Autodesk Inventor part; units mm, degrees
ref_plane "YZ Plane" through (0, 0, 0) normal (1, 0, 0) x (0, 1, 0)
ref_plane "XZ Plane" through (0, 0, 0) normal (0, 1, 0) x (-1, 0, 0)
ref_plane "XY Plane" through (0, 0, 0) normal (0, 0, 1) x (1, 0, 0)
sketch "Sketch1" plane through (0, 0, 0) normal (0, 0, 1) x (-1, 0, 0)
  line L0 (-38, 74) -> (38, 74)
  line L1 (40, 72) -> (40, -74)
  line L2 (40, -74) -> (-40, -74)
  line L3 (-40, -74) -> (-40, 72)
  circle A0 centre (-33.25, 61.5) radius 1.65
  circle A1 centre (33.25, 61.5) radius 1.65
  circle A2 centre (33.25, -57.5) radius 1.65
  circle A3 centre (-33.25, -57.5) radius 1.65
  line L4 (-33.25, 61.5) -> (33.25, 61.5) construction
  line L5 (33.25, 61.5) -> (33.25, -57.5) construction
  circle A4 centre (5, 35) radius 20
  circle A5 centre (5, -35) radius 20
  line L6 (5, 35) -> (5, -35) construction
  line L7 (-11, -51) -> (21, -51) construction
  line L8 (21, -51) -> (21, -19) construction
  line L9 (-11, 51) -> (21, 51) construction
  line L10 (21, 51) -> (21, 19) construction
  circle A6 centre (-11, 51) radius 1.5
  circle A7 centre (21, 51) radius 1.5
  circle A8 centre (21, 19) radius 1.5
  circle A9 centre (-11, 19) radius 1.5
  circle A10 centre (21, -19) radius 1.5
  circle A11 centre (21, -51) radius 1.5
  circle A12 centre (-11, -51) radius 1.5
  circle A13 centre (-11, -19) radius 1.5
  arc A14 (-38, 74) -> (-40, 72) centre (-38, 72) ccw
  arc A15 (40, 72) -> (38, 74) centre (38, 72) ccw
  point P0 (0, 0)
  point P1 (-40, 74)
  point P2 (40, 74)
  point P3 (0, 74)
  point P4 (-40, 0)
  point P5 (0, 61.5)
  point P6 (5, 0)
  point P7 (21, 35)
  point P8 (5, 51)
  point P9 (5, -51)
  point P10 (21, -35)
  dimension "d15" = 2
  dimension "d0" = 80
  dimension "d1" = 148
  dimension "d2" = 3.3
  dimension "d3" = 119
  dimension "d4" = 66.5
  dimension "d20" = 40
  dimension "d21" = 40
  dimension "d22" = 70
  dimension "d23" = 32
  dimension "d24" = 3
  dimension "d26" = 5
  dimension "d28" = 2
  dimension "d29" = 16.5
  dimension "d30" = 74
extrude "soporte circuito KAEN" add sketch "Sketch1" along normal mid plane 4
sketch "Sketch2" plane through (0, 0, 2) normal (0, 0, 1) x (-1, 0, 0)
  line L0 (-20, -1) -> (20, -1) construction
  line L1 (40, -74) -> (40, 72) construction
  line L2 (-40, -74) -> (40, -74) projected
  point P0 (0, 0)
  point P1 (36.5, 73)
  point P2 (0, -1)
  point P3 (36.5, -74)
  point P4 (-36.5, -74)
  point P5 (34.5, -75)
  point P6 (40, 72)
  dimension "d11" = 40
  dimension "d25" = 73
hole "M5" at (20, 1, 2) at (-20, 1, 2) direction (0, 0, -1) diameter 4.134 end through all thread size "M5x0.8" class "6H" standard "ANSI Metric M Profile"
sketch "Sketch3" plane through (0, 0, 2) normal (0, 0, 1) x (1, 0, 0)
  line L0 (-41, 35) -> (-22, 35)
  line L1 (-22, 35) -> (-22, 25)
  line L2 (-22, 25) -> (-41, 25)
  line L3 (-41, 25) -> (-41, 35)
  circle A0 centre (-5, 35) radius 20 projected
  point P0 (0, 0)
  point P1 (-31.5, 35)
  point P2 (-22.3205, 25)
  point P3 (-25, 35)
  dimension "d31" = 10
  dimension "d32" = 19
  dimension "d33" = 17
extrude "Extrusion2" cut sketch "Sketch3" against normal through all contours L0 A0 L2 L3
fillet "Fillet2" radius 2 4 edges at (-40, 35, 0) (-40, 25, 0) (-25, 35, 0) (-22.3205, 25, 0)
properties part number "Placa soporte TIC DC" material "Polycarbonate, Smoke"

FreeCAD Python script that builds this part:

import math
import FreeCAD as App
import Part
import Sketcher

V = App.Vector


def edges_at(feature, points):
    """Names of the edges that pass closest to the given points."""
    edges = feature.Shape.Edges
    near = lambda p: min(range(len(edges)), key=lambda i: edges[i].distToShape(Part.Vertex(*p))[0])
    return sorted({f"Edge{near(p) + 1}" for p in points})

doc = App.newDocument("Part")
body = doc.addObject("PartDesign::Body", "Body")

# Sketch on XY plane
sketch1 = body.newObject("Sketcher::SketchObject", "Sketch")
sketch1.AttachmentSupport = (doc.getObject("XY_Plane"), [""])
sketch1.MapMode = "FlatFace"
sketch1.addGeometry([
    Part.LineSegment(V(-38, -74, 0), V(38, -74, 0)),  # 0
    Part.ArcOfCircle(Part.Circle(V(38, -72, 0), V(0, 0, 1), 2), math.radians(-90), math.radians(0)),  # 1
    Part.LineSegment(V(40, -72, 0), V(40, 74, 0)),  # 2
    Part.LineSegment(V(40, 74, 0), V(-40, 74, 0)),  # 3
    Part.LineSegment(V(-40, 74, 0), V(-40, -72, 0)),  # 4
    Part.ArcOfCircle(Part.Circle(V(-38, -72, 0), V(0, 0, 1), 2), math.radians(180), math.radians(270)),  # 5
    Part.Circle(V(33.2, 57.5, 0), V(0, 0, 1), 1.6),  # 6
    Part.Circle(V(11, 51, 0), V(0, 0, 1), 1.5),  # 7
    Part.Circle(V(11, 19, 0), V(0, 0, 1), 1.5),  # 8
    Part.Circle(V(-33.2, 57.5, 0), V(0, 0, 1), 1.6),  # 9
    Part.Circle(V(-21, 51, 0), V(0, 0, 1), 1.5),  # 10
    Part.Circle(V(-5, 35, 0), V(0, 0, 1), 20),  # 11
    Part.Circle(V(-21, 19, 0), V(0, 0, 1), 1.5),  # 12
    Part.Circle(V(11, -19, 0), V(0, 0, 1), 1.5),  # 13
    Part.Circle(V(33.2, -61.5, 0), V(0, 0, 1), 1.6),  # 14
    Part.Circle(V(11, -51, 0), V(0, 0, 1), 1.5),  # 15
    Part.Circle(V(-5, -35, 0), V(0, 0, 1), 20),  # 16
    Part.Circle(V(-21, -19, 0), V(0, 0, 1), 1.5),  # 17
    Part.Circle(V(-21, -51, 0), V(0, 0, 1), 1.5),  # 18
    Part.Circle(V(-33.2, -61.5, 0), V(0, 0, 1), 1.6),  # 19
], False)
sketch1.addConstraint([
    Sketcher.Constraint("Tangent", 0, 2, 1, 1),
    Sketcher.Constraint("Tangent", 1, 2, 2, 1),
    Sketcher.Constraint("Coincident", 2, 2, 3, 1),
    Sketcher.Constraint("Coincident", 3, 2, 4, 1),
    Sketcher.Constraint("Tangent", 4, 2, 5, 1),
    Sketcher.Constraint("Tangent", 5, 2, 0, 1),
    Sketcher.Constraint("Horizontal", 0),
    Sketcher.Constraint("Vertical", 2),
    Sketcher.Constraint("Horizontal", 3),
    Sketcher.Constraint("Vertical", 4),
    Sketcher.Constraint("Equal", 1, 5),
    Sketcher.Constraint("Equal", 7, 8),
    Sketcher.Constraint("Equal", 6, 9),
    Sketcher.Constraint("Equal", 8, 10),
    Sketcher.Constraint("Equal", 10, 12),
    Sketcher.Constraint("Equal", 12, 13),
    Sketcher.Constraint("Equal", 9, 14),
    Sketcher.Constraint("Equal", 13, 15),
    Sketcher.Constraint("Equal", 11, 16),
    Sketcher.Constraint("Equal", 15, 17),
    Sketcher.Constraint("Equal", 17, 18),
    Sketcher.Constraint("Equal", 14, 19),
    Sketcher.Constraint("Symmetric", 6, 3, 9, 3, -2),
    Sketcher.Constraint("Symmetric", 14, 3, 19, 3, -2),
    Sketcher.Constraint("Symmetric", 8, 3, 13, 3, -1),
    Sketcher.Constraint("Symmetric", 7, 3, 15, 3, -1),
    Sketcher.Constraint("Symmetric", 11, 3, 16, 3, -1),
    Sketcher.Constraint("Symmetric", 12, 3, 17, 3, -1),
    Sketcher.Constraint("Symmetric", 10, 3, 18, 3, -1),
    Sketcher.Constraint("Horizontal", 7, 3, 10, 3),
    Sketcher.Constraint("Horizontal", 8, 3, 12, 3),
    Sketcher.Constraint("Vertical", 7, 3, 8, 3),
    Sketcher.Constraint("Vertical", 10, 3, 12, 3),
    Sketcher.Constraint("Vertical", 6, 3, 14, 3),
    Sketcher.Constraint("Diameter", 7, 3.0),
    Sketcher.Constraint("Diameter", 11, 40.0),
    Sketcher.Constraint("Radius", 1, 2.0),
    Sketcher.Constraint("Diameter", 6, 3.3),
    Sketcher.Constraint("DistanceX", 3, 2, 3, 1, 80.0),
    Sketcher.Constraint("DistanceX", 11, 3, -1, 1, 5.0),
    Sketcher.Constraint("DistanceY", 0, 2, -1, 1, 74.0),
    Sketcher.Constraint("DistanceX", -1, 1, 1, 2, 40.0),
    Sketcher.Constraint("DistanceY", -1, 1, 2, 2, 74.0),
    Sketcher.Constraint("DistanceY", 8, 3, 7, 3, 32.0),
    Sketcher.Constraint("DistanceX", 10, 3, 7, 3, 32.0),
    Sketcher.Constraint("DistanceY", 13, 3, 7, 3, 70.0),
    Sketcher.Constraint("DistanceX", 9, 3, 6, 3, 66.5),
    Sketcher.Constraint("DistanceY", 6, 3, 2, 2, 16.5),
    Sketcher.Constraint("DistanceX", -1, 1, 7, 3, 11.0),
    Sketcher.Constraint("DistanceY", -1, 1, 11, 3, 35.0),
    Sketcher.Constraint("DistanceY", 14, 3, -1, 1, 61.5),
])
pad1 = body.newObject("PartDesign::Pad", "Pad")
pad1.Profile = sketch1
pad1.Length = 4
pad1.Midplane = True

# Sketch on XY plane
sketch2 = body.newObject("Sketcher::SketchObject", "Sketch001")
sketch2.AttachmentSupport = (doc.getObject("XY_Plane"), [""])
sketch2.MapMode = "FlatFace"
sketch2.AttachmentOffset = App.Placement(V(0, 0, 2), App.Rotation())
sketch2.addGeometry([
    Part.Circle(V(20, 1, 0), V(0, 0, 1), 2.1),
    Part.Circle(V(-20, 1, 0), V(0, 0, 1), 2.1),
], False)
sketch2.addConstraint([
    Sketcher.Constraint("Equal", 0, 1),
    Sketcher.Constraint("Symmetric", 0, 3, 1, 3, -2),
    Sketcher.Constraint("Diameter", 0, 4.134),
    Sketcher.Constraint("DistanceX", -1, 1, 0, 3, 20.0),
    Sketcher.Constraint("DistanceY", -1, 1, 0, 3, 1.0),
])
doc.recompute()
hole = body.newObject("PartDesign::Hole", "Hole")
hole.Profile = sketch2
hole.ThreadType = "None"
hole.Diameter = 4.134
hole.DepthType = "ThroughAll"

# Sketch on XY plane
sketch3 = body.newObject("Sketcher::SketchObject", "Sketch002")
sketch3.AttachmentSupport = (doc.getObject("XY_Plane"), [""])
sketch3.MapMode = "FlatFace"
sketch3.AttachmentOffset = App.Placement(V(0, 0, 2), App.Rotation())
sketch3.addGeometry([
    Part.LineSegment(V(-25, 35, 0), V(-41, 35, 0)),
    Part.LineSegment(V(-41, 35, 0), V(-41, 25, 0)),
    Part.LineSegment(V(-41, 25, 0), V(-22, 25, 0)),
    Part.ArcOfCircle(Part.Circle(V(-5, 35, 0), V(0, 0, 1), 20), math.radians(180), math.radians(210)),
], False)
sketch3.addConstraint([
    Sketcher.Constraint("Coincident", 0, 2, 1, 1),
    Sketcher.Constraint("Coincident", 1, 2, 2, 1),
    Sketcher.Constraint("Coincident", 2, 2, 3, 2),
    Sketcher.Constraint("Coincident", 3, 1, 0, 1),
    Sketcher.Constraint("Horizontal", 0),
    Sketcher.Constraint("Vertical", 1),
    Sketcher.Constraint("Horizontal", 2),
    Sketcher.Constraint("Horizontal", 3, 3, 0, 2),
    Sketcher.Constraint("DistanceY", 1, 2, 1, 1, 10.0),
    Sketcher.Constraint("Radius", 3, 20.0),
    Sketcher.Constraint("DistanceX", 0, 2, 0, 1, 16.0),
    Sketcher.Constraint("DistanceX", 3, 3, -1, 1, 5.0),
    Sketcher.Constraint("DistanceY", -1, 1, 3, 3, 35.0),
])
pocket1 = body.newObject("PartDesign::Pocket", "Pocket")
pocket1.Profile = sketch3
pocket1.Type = "ThroughAll"
doc.recompute()

fillet = body.newObject("PartDesign::Fillet", "Fillet")
fillet.Base = (pocket1, edges_at(pocket1, [
    (-40, 35, 0),
    (-40, 25, 0),
    (-25, 35, 0),
    (-22.32, 25, 0),
]))
fillet.Radius = 2

doc.recompute()
